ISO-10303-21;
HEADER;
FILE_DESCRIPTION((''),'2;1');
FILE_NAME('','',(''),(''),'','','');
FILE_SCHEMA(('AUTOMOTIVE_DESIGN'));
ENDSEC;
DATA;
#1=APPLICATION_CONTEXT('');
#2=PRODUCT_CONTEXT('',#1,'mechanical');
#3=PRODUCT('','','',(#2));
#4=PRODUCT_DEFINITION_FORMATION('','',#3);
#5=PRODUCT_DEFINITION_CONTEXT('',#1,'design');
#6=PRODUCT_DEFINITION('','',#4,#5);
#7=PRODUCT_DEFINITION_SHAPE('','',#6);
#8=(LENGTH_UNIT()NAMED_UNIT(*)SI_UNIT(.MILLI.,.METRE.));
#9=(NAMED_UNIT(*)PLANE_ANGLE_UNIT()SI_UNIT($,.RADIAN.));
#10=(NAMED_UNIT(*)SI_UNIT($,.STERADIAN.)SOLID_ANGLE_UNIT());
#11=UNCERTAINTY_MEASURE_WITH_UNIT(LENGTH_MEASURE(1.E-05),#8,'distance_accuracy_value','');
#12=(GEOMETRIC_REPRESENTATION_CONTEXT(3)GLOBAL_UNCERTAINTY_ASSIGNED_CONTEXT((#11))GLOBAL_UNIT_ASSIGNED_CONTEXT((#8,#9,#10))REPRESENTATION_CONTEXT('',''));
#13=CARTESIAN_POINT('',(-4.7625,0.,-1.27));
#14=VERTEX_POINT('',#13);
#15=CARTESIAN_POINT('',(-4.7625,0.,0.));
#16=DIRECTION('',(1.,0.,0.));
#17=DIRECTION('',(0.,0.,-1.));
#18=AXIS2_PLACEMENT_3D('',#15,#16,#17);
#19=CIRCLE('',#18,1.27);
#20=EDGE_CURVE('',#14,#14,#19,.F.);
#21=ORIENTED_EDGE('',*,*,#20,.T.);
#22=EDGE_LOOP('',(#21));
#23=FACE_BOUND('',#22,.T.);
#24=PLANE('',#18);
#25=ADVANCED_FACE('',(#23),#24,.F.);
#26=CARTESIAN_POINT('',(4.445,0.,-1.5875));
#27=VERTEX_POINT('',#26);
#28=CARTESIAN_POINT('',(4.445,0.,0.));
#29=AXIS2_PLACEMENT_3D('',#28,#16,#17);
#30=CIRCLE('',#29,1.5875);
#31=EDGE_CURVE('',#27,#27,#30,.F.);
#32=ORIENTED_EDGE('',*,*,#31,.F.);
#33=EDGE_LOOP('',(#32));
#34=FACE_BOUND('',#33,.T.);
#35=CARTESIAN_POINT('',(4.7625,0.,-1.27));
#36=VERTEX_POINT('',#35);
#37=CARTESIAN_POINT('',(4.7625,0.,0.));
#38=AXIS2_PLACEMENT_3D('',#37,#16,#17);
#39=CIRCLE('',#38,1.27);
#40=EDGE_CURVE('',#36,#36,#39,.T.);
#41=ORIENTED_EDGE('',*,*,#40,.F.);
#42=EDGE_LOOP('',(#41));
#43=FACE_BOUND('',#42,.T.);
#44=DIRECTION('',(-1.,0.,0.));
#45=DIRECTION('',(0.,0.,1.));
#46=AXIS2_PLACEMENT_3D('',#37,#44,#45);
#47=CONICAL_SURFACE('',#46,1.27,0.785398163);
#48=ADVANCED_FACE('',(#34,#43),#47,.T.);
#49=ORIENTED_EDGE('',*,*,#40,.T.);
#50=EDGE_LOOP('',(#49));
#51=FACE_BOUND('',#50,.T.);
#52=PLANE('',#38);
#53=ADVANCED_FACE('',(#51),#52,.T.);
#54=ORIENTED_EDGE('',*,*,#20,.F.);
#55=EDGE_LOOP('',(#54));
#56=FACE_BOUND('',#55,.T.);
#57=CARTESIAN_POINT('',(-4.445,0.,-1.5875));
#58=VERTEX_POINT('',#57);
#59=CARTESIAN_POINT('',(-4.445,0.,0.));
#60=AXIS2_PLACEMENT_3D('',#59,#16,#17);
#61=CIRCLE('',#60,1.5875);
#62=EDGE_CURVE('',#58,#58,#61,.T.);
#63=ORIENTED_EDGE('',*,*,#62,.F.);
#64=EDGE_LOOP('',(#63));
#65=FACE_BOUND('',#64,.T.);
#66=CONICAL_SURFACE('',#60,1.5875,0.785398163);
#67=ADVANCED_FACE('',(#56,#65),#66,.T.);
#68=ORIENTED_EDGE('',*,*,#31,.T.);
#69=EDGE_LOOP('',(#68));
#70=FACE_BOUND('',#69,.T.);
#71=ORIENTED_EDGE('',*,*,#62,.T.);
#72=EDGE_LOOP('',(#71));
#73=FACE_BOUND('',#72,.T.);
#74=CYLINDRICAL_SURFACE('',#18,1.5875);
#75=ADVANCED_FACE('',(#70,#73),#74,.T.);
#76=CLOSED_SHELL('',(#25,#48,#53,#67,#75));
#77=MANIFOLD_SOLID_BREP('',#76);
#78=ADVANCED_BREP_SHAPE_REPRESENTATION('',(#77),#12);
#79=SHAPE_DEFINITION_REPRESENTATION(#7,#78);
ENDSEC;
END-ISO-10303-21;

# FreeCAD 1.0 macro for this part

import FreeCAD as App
import Part
import Sketcher
from FreeCAD import Vector
Q = App.Units.Quantity


def edges_at(feature, points):
    """Names of the edges that pass closest to the given points."""
    edges = feature.Shape.Edges
    near = lambda p: min(range(len(edges)), key=lambda i: edges[i].distToShape(Part.Vertex(*p))[0])
    return sorted({f"Edge{near(p) + 1}" for p in points})

doc = App.newDocument("Part")
params = doc.addObject("Spreadsheet::Sheet", "Params")
for row, (alias, value) in enumerate([
    ("sketch1_diameter", "0.125 in"),
    ("pad1_length", "0.1875 in"),
    ("pad1_length2", "0.1875 in"),
    ("chamfer_size", "0.0125 in"),
], start=1):
    params.set(f"A{row}", alias)
    params.set(f"B{row}", "=" + value)
    params.setAlias(f"B{row}", alias)

body = doc.addObject("PartDesign::Body", "Body")

sketch1 = body.newObject("Sketcher::SketchObject", "Sketch")
sketch1.AttachmentSupport = (doc.getObject("YZ_Plane"), [""])
sketch1.MapMode = "FlatFace"
sketch1.addGeometry(Part.Circle(Vector(0, 0, 0), Vector(0, 0, 1), 1.6), False)
sketch1.addConstraint([
    Sketcher.Constraint("Coincident", 0, 3, -1, 1),
    Sketcher.Constraint("Diameter", 0, Q("0.125 in")),
])
sketch1.setExpression("Constraints[1]", "Params.sketch1_diameter")
pad1 = body.newObject("PartDesign::Pad", "Pad")
pad1.Profile = sketch1
pad1.Type = "TwoLengths"
pad1.setExpression("Length", "Params.pad1_length")
pad1.setExpression("Length2", "Params.pad1_length2")
doc.recompute()

chamfer = body.newObject("PartDesign::Chamfer", "Chamfer")
chamfer.Base = (pad1, edges_at(pad1, [(-4.763, 0, 1.587), (4.763, 0, 1.587)]))
chamfer.setExpression("Size", "Params.chamfer_size")

doc.recompute()
